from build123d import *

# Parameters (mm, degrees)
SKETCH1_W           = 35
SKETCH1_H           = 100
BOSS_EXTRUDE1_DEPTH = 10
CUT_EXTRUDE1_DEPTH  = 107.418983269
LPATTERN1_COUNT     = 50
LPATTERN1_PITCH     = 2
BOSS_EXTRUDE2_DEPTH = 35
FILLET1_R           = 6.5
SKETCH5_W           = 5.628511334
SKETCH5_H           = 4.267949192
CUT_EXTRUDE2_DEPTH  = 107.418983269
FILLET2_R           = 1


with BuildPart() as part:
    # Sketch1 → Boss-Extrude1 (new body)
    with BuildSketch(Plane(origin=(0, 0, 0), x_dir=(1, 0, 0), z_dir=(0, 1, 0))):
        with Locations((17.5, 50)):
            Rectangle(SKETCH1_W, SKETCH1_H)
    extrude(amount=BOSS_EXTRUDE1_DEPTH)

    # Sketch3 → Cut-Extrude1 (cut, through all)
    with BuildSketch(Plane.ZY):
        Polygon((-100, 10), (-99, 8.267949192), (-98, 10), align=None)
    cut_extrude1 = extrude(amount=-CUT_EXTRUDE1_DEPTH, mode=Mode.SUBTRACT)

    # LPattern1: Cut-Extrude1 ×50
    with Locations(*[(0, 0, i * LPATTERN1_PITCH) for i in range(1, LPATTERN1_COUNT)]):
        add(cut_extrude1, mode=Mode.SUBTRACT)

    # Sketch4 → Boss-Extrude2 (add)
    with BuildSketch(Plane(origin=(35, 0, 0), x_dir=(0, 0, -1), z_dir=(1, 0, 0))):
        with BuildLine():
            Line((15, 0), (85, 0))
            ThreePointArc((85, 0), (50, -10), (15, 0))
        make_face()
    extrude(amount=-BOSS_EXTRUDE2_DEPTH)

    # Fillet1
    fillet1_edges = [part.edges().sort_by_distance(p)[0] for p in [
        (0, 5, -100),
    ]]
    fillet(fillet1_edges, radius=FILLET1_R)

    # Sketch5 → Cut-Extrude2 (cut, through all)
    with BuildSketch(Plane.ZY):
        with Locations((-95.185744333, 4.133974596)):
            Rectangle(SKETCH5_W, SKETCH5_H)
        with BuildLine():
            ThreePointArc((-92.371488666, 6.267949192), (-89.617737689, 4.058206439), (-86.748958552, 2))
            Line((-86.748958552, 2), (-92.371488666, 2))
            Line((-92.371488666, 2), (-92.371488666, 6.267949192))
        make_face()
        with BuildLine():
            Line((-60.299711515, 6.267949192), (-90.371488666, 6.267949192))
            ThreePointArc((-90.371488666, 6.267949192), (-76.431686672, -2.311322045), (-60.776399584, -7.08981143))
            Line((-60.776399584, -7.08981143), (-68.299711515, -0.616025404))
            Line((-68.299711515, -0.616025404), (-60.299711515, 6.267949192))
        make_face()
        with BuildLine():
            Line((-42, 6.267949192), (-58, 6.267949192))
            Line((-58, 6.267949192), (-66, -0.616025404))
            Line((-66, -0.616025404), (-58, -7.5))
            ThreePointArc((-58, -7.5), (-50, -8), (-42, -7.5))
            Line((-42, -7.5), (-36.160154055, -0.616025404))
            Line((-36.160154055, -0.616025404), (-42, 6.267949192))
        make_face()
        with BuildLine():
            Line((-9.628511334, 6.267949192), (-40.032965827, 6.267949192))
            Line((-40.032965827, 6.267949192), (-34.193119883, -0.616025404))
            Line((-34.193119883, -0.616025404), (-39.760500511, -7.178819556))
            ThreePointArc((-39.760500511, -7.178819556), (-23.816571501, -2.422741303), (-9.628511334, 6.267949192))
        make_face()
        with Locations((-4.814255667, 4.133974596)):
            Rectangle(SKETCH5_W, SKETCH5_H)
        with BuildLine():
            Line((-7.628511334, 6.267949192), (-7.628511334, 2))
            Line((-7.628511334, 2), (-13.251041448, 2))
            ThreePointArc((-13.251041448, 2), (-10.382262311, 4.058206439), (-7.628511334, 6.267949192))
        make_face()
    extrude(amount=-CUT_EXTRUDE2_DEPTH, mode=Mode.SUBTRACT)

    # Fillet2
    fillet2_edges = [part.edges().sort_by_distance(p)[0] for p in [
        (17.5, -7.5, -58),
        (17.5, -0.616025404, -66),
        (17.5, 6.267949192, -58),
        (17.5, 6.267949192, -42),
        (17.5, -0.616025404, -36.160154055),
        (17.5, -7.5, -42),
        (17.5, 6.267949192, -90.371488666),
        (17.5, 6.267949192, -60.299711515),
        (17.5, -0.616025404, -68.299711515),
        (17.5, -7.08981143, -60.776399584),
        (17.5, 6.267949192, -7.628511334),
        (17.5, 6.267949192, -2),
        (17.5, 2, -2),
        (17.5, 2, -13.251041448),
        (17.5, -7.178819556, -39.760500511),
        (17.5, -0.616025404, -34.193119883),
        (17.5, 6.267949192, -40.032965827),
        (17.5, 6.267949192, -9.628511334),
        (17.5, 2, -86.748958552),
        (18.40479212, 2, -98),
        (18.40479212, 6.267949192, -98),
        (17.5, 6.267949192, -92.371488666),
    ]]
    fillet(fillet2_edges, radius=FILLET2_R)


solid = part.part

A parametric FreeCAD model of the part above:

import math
import FreeCAD as App
import Part
import Sketcher

V = App.Vector
Q = App.Units.Quantity


def edges_at(feature, points):
    """Names of the edges that pass closest to the given points."""
    edges = feature.Shape.Edges
    near = lambda p: min(range(len(edges)), key=lambda i: edges[i].distToShape(Part.Vertex(*p))[0])
    return sorted({f"Edge{near(p) + 1}" for p in points})

doc = App.newDocument("Part")
params = doc.addObject("Spreadsheet::Sheet", "Params")
for row, (alias, value) in enumerate([
    ("sketch1_width", "35 mm"),
    ("sketch1_height", "100 mm"),
    ("pad1_length", "10 mm"),
    ("sketch2_height", "2 mm"),
    ("linearpattern_pitch", "2 mm"),
    ("sketch3_height", "70 mm"),
    ("sketch3_radius", "66.25 mm"),
    ("pad2_length", "35 mm"),
    ("fillet_radius", "6.5 mm"),
    ("sketch4_height", "16 mm"),
    ("sketch4_radius", "64.25 mm"),
    ("fillet2_radius", "1 mm"),
], start=1):
    params.set(f"A{row}", alias)
    params.set(f"B{row}", "=" + value)
    params.setAlias(f"B{row}", alias)

body = doc.addObject("PartDesign::Body", "Body")

# Sketch on XZ plane
sketch1 = body.newObject("Sketcher::SketchObject", "Sketch")
sketch1.AttachmentSupport = (doc.getObject("XZ_Plane"), [""])
sketch1.MapMode = "FlatFace"
sketch1.addGeometry([
    Part.LineSegment(V(0, -100, 0), V(0, 0, 0)),
    Part.LineSegment(V(0, 0, 0), V(35, 0, 0)),
    Part.LineSegment(V(35, 0, 0), V(35, -100, 0)),
    Part.LineSegment(V(35, -100, 0), V(0, -100, 0)),
], False)
sketch1.addConstraint([
    Sketcher.Constraint("Coincident", 0, 2, 1, 1),
    Sketcher.Constraint("Coincident", 1, 2, 2, 1),
    Sketcher.Constraint("Coincident", 2, 2, 3, 1),
    Sketcher.Constraint("Coincident", 3, 2, 0, 1),
    Sketcher.Constraint("Vertical", 0),
    Sketcher.Constraint("Horizontal", 1),
    Sketcher.Constraint("Vertical", 2),
    Sketcher.Constraint("Horizontal", 3),
    Sketcher.Constraint("Coincident", 0, 2, -1, 1),
    Sketcher.Constraint("DistanceX", 1, 1, 1, 2, Q("35 mm")),
    Sketcher.Constraint("DistanceY", 0, 1, 0, 2, Q("100 mm")),
])
sketch1.setExpression("Constraints[9]", "Params.sketch1_width")
sketch1.setExpression("Constraints[10]", "Params.sketch1_height")
pad1 = body.newObject("PartDesign::Pad", "Pad")
pad1.Profile = sketch1
pad1.setExpression("Length", "Params.pad1_length")
pad1.Reversed = True

# Sketch on YZ plane
sketch2 = body.newObject("Sketcher::SketchObject", "Sketch001")
sketch2.AttachmentSupport = (doc.getObject("YZ_Plane"), [""])
sketch2.MapMode = "FlatFace"
sketch2.addGeometry([
    Part.LineSegment(V(10, -100, 0), V(8.267949, -99, 0)),
    Part.LineSegment(V(8.267949, -99, 0), V(10, -98, 0)),
    Part.LineSegment(V(10, -98, 0), V(10, -100, 0)),
], False)
sketch2.addConstraint([
    Sketcher.Constraint("Coincident", 0, 2, 1, 1),
    Sketcher.Constraint("Coincident", 1, 2, 2, 1),
    Sketcher.Constraint("Coincident", 2, 2, 0, 1),
    Sketcher.Constraint("Vertical", 2),
    Sketcher.Constraint("Equal", 0, 1),
    Sketcher.Constraint("DistanceY", 2, 2, 2, 1, Q("2 mm")),
    Sketcher.Constraint("Angle", 0, Q("150 deg")),
    Sketcher.Constraint("DistanceY", 0, 2, -1, 1, Q("99 mm")),
    Sketcher.Constraint("DistanceX", -1, 1, 1, 2, Q("10 mm")),
])
sketch2.setExpression("Constraints[5]", "Params.sketch2_height")
pocket1 = body.newObject("PartDesign::Pocket", "Pocket")
pocket1.Profile = sketch2
pocket1.Type = "ThroughAll"
pocket1.Reversed = True
doc.recompute()

linearpattern = body.newObject("PartDesign::LinearPattern", "LinearPattern")
linearpattern.Originals = [pocket1]
linearpattern.Direction = (doc.getObject("Z_Axis"), [""])
linearpattern.Mode = "offset"
linearpattern.setExpression("Offset", "Params.linearpattern_pitch")
linearpattern.Occurrences = 50
body.Tip = linearpattern

# Sketch on YZ plane
sketch3 = body.newObject("Sketcher::SketchObject", "Sketch002")
sketch3.AttachmentSupport = (doc.getObject("YZ_Plane"), [""])
sketch3.MapMode = "FlatFace"
sketch3.AttachmentOffset = App.Placement(V(0, 0, 35), App.Rotation())
sketch3.addGeometry([
    Part.LineSegment(V(0, -85, 0), V(0, -15, 0)),
    Part.ArcOfCircle(Part.Circle(V(56.25, -50, 0), V(0, 0, 1), 66.25), math.radians(148.109208), math.radians(211.890792)),
], False)
sketch3.addConstraint([
    Sketcher.Constraint("Coincident", 0, 1, 1, 2),
    Sketcher.Constraint("Coincident", 1, 1, 0, 2),
    Sketcher.Constraint("Vertical", 0),
    Sketcher.Constraint("PointOnObject", 0, 1, -2),
    Sketcher.Constraint("DistanceY", 0, 1, 0, 2, Q("70 mm")),
    Sketcher.Constraint("Radius", 1, Q("66.25 mm")),
    Sketcher.Constraint("DistanceY", 1, 3, -1, 1, Q("50 mm")),
])
sketch3.setExpression("Constraints[4]", "Params.sketch3_height")
sketch3.setExpression("Constraints[5]", "Params.sketch3_radius")
pad2 = body.newObject("PartDesign::Pad", "Pad001")
pad2.Profile = sketch3
pad2.setExpression("Length", "Params.pad2_length")
pad2.Reversed = True
doc.recompute()

fillet = body.newObject("PartDesign::Fillet", "Fillet")
fillet.Base = (pad2, edges_at(pad2, [(0, 5, -100)]))
fillet.setExpression("Radius", "Params.fillet_radius")

# Sketch on YZ plane
sketch4 = body.newObject("Sketcher::SketchObject", "Sketch003")
sketch4.AttachmentSupport = (doc.getObject("YZ_Plane"), [""])
sketch4.MapMode = "FlatFace"
sketch4.addGeometry([
    Part.LineSegment(V(6.267949, -98, 0), V(2, -98, 0)),  # 0
    Part.LineSegment(V(2, -98, 0), V(2, -86.748959, 0)),  # 1
    Part.ArcOfCircle(Part.Circle(V(56.25, -50, 0), V(0, 0, 1), 65.525174), math.radians(-145.886281), math.radians(-139.710919)),  # 2
    Part.LineSegment(V(6.267949, -92.371489, 0), V(6.267949, -98, 0)),  # 3
    Part.LineSegment(V(6.267949, -60.299712, 0), V(6.267949, -90.371489, 0)),  # 4
    Part.ArcOfCircle(Part.Circle(V(56.25, -50, 0), V(0, 0, 1), 64.25), math.radians(-170.344366), math.radians(-141.071505)),  # 5
    Part.LineSegment(V(-7.089811, -60.7764, 0), V(-0.616025, -68.299712, 0)),  # 6
    Part.LineSegment(V(-0.616025, -68.299712, 0), V(6.267949, -60.299712, 0)),  # 7
    Part.LineSegment(V(6.267949, -42, 0), V(6.267949, -58, 0)),  # 8
    Part.LineSegment(V(6.267949, -58, 0), V(-0.616025, -66, 0)),  # 9
    Part.LineSegment(V(-0.616025, -66, 0), V(-7.5, -58, 0)),  # 10
    Part.ArcOfCircle(Part.Circle(V(56.25, -50, 0), V(0, 0, 1), 64.25), math.radians(172.847331), math.radians(187.152669)),  # 11
    Part.LineSegment(V(-7.5, -42, 0), V(-0.616025, -36.160154, 0)),  # 12
    Part.LineSegment(V(-0.616025, -36.160154, 0), V(6.267949, -42, 0)),  # 13
    Part.LineSegment(V(6.267949, -9.628511, 0), V(6.267949, -40.032966, 0)),  # 14
    Part.LineSegment(V(6.267949, -40.032966, 0), V(-0.616025, -34.19312, 0)),  # 15
    Part.LineSegment(V(-0.616025, -34.19312, 0), V(-7.17882, -39.760501, 0)),  # 16
    Part.ArcOfCircle(Part.Circle(V(56.25, -50, 0), V(0, 0, 1), 64.25), math.radians(141.071506), math.radians(170.82969)),  # 17
    Part.LineSegment(V(2, -2, 0), V(6.267949, -2, 0)),  # 18
    Part.LineSegment(V(6.267949, -2, 0), V(6.267949, -7.628511, 0)),  # 19
    Part.ArcOfCircle(Part.Circle(V(56.25, -50, 0), V(0, 0, 1), 65.525174), math.radians(139.710919), math.radians(145.886281)),  # 20
    Part.LineSegment(V(2, -13.251041, 0), V(2, -2, 0)),  # 21
], False)
sketch4.addConstraint([
    Sketcher.Constraint("Coincident", 0, 2, 1, 1),
    Sketcher.Constraint("Coincident", 1, 2, 2, 1),
    Sketcher.Constraint("Coincident", 2, 2, 3, 1),
    Sketcher.Constraint("Coincident", 3, 2, 0, 1),
    Sketcher.Constraint("Coincident", 4, 2, 5, 2),
    Sketcher.Constraint("Coincident", 5, 1, 6, 1),
    Sketcher.Constraint("Coincident", 6, 2, 7, 1),
    Sketcher.Constraint("Coincident", 7, 2, 4, 1),
    Sketcher.Constraint("Coincident", 8, 2, 9, 1),
    Sketcher.Constraint("Coincident", 9, 2, 10, 1),
    Sketcher.Constraint("Coincident", 10, 2, 11, 2),
    Sketcher.Constraint("Coincident", 11, 1, 12, 1),
    Sketcher.Constraint("Coincident", 12, 2, 13, 1),
    Sketcher.Constraint("Coincident", 13, 2, 8, 1),
    Sketcher.Constraint("Coincident", 14, 2, 15, 1),
    Sketcher.Constraint("Coincident", 15, 2, 16, 1),
    Sketcher.Constraint("Coincident", 16, 2, 17, 2),
    Sketcher.Constraint("Coincident", 17, 1, 14, 1),
    Sketcher.Constraint("Coincident", 18, 2, 19, 1),
    Sketcher.Constraint("Coincident", 19, 2, 20, 1),
    Sketcher.Constraint("Coincident", 20, 2, 21, 1),
    Sketcher.Constraint("Coincident", 21, 2, 18, 1),
    Sketcher.Constraint("Horizontal", 0),
    Sketcher.Constraint("Vertical", 1),
    Sketcher.Constraint("Vertical", 3),
    Sketcher.Constraint("Vertical", 4),
    Sketcher.Constraint("Vertical", 8),
    Sketcher.Constraint("Vertical", 14),
    Sketcher.Constraint("Horizontal", 18),
    Sketcher.Constraint("Vertical", 19),
    Sketcher.Constraint("Vertical", 21),
    Sketcher.Constraint("Coincident", 5, 3, 2, 3),
    Sketcher.Constraint("Coincident", 11, 3, 2, 3),
    Sketcher.Constraint("Coincident", 17, 3, 2, 3),
    Sketcher.Constraint("Coincident", 20, 3, 2, 3),
    Sketcher.Constraint("Equal", 5, 11),
    Sketcher.Constraint("Equal", 11, 17),
    Sketcher.Constraint("Equal", 2, 20),
    Sketcher.Constraint("Parallel", 7, 9),
    Sketcher.Constraint("Parallel", 6, 10),
    Sketcher.Constraint("Parallel", 13, 15),
    Sketcher.Constraint("Parallel", 12, 16),
    Sketcher.Constraint("Horizontal", 8, 2, 10, 2),
    Sketcher.Constraint("Horizontal", 11, 1, 13, 2),
    Sketcher.Constraint("Vertical", 3, 2, 4, 2),
    Sketcher.Constraint("Vertical", 7, 2, 8, 2),
    Sketcher.Constraint("Vertical", 6, 2, 9, 2),
    Sketcher.Constraint("Vertical", 10, 2, 11, 1),
    Sketcher.Constraint("Vertical", 9, 2, 12, 2),
    Sketcher.Constraint("Vertical", 13, 2, 14, 2),
    Sketcher.Constraint("Vertical", 12, 2, 15, 2),
    Sketcher.Constraint("Vertical", 17, 1, 18, 2),
    Sketcher.Constraint("Vertical", 1, 2, 20, 2),
    Sketcher.Constraint("Equal", 3, 19),
    Sketcher.Constraint("Equal", 9, 10),
    Sketcher.Constraint("DistanceY", 8, 2, 8, 1, Q("16 mm")),
    Sketcher.Constraint("Radius", 5, Q("64.25 mm")),
    Sketcher.Constraint("DistanceY", 2, 3, -1, 1, Q("50 mm")),
    Sketcher.Constraint("DistanceX", -1, 1, 0, 2, Q("2 mm")),
    Sketcher.Constraint("DistanceY", 0, 2, -1, 1, Q("98 mm")),
    Sketcher.Constraint("DistanceY", 9, 2, -1, 1, Q("66 mm")),
    Sketcher.Constraint("DistanceY", 2, 2, 4, 2, Q("2 mm")),
    Sketcher.Constraint("DistanceX", 10, 2, -1, 1, Q("7.5 mm")),
    Sketcher.Constraint("Radius", 2, Q("65.525174 mm")),
    Sketcher.Constraint("DistanceY", 5, 1, -1, 1, Q("60.7764 mm")),
    Sketcher.Constraint("DistanceY", 16, 2, -1, 1, Q("39.760501 mm")),
    Sketcher.Constraint("Distance", 16, Q("8.60616 mm")),
])
sketch4.setExpression("Constraints[55]", "Params.sketch4_height")
sketch4.setExpression("Constraints[56]", "Params.sketch4_radius")
pocket2 = body.newObject("PartDesign::Pocket", "Pocket001")
pocket2.Profile = sketch4
pocket2.Type = "ThroughAll"
pocket2.Reversed = True
doc.recompute()

fillet2 = body.newObject("PartDesign::Fillet", "Fillet001")
fillet2.Base = (pocket2, edges_at(pocket2, [
    (17.5, -7.5, -58),
    (17.5, -0.616, -66),
    (17.5, 6.268, -58),
    (17.5, 6.268, -42),
    (17.5, -0.616, -36.16),
    (17.5, -7.5, -42),
    (17.5, 6.268, -90.371),
    (17.5, 6.268, -60.3),
    (17.5, -0.616, -68.3),
    (17.5, -7.09, -60.776),
    (17.5, 6.268, -7.629),
    (17.5, 6.268, -2),
    (17.5, 2, -2),
    (17.5, 2, -13.251),
    (17.5, -7.179, -39.761),
    (17.5, -0.616, -34.193),
    (17.5, 6.268, -40.033),
    (17.5, 6.268, -9.629),
    (17.5, 2, -86.749),
    (18.405, 2, -98),
    (18.405, 6.268, -98),
    (17.5, 6.268, -92.371),
]))
fillet2.setExpression("Radius", "Params.fillet2_radius")

doc.recompute()
